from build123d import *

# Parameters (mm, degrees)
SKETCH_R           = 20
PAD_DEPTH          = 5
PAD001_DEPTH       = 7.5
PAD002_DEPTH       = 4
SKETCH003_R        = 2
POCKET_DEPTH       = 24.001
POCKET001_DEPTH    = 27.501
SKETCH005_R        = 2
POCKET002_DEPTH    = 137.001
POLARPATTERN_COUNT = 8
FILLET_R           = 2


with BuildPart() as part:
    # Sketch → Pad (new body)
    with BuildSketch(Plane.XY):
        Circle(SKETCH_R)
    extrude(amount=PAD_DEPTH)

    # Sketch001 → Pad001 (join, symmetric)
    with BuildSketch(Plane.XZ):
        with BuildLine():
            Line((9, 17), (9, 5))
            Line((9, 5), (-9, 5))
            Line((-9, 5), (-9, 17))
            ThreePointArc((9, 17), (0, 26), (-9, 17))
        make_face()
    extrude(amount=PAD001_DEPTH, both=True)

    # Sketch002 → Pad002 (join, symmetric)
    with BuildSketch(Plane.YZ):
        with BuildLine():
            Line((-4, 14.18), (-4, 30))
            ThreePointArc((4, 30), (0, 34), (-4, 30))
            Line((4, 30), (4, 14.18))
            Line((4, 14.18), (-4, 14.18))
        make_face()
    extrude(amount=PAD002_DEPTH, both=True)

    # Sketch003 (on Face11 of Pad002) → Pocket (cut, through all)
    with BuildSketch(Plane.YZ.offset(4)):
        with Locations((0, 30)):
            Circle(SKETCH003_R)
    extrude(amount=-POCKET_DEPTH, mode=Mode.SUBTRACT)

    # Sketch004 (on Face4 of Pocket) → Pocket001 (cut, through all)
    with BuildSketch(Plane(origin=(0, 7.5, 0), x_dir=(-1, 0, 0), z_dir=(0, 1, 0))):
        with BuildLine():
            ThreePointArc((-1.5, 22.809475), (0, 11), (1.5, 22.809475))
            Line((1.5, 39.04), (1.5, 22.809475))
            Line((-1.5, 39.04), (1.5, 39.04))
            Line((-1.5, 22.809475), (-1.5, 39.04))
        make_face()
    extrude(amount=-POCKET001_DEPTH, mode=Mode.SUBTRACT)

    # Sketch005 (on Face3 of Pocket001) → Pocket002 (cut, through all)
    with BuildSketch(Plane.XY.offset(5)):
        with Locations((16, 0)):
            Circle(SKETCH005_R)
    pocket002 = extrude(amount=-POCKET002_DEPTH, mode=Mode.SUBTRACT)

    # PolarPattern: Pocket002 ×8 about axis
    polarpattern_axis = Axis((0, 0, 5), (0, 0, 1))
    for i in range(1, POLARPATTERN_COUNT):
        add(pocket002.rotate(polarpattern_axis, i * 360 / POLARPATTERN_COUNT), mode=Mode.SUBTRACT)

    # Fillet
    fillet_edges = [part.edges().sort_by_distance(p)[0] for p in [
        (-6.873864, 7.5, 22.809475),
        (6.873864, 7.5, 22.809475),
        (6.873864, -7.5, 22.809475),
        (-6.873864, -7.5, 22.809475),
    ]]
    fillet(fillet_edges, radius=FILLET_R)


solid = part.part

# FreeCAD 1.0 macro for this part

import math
import FreeCAD as App
import Part
import Sketcher


def edges_at(feature, points):
    """Names of the edges that pass closest to the given points."""
    edges = feature.Shape.Edges
    near = lambda p: min(range(len(edges)), key=lambda i: edges[i].distToShape(Part.Vertex(*p))[0])
    return sorted({f"Edge{near(p) + 1}" for p in points})

doc = App.newDocument("Part")
body = doc.addObject("PartDesign::Body", "Body")

sketch1 = doc.addObject("Sketcher::SketchObject", "Sketch")
body.addObject(sketch1)
sketch1.AttachmentSupport = (doc.XY_Plane, [""])
sketch1.MapMode = "FlatFace"
sketch1.addGeometry(Part.Circle(App.Vector(0, 0, 0), App.Vector(0, 0, 1), 20), False)
sketch1.addConstraint(Sketcher.Constraint("Coincident", 0, 3, -1, 1))
sketch1.addConstraint(Sketcher.Constraint("Diameter", 0, 40.0))
pad1 = doc.addObject("PartDesign::Pad", "Pad")
body.addObject(pad1)
pad1.Profile = sketch1
pad1.Length = 5

sketch2 = doc.addObject("Sketcher::SketchObject", "Sketch001")
body.addObject(sketch2)
sketch2.AttachmentSupport = (doc.XZ_Plane, [""])
sketch2.MapMode = "FlatFace"
sketch2.addGeometry(Part.LineSegment(App.Vector(9, 5, 0), App.Vector(9, 17, 0)), False)
sketch2.addGeometry(Part.ArcOfCircle(Part.Circle(App.Vector(0, 17, 0), App.Vector(0, 0, 1), 9), math.radians(0), math.radians(180)), False)
sketch2.addGeometry(Part.LineSegment(App.Vector(-9, 17, 0), App.Vector(-9, 5, 0)), False)
sketch2.addGeometry(Part.LineSegment(App.Vector(-9, 5, 0), App.Vector(9, 5, 0)), False)
sketch2.addConstraint(Sketcher.Constraint("Tangent", 0, 2, 1, 1))
sketch2.addConstraint(Sketcher.Constraint("Tangent", 1, 2, 2, 1))
sketch2.addConstraint(Sketcher.Constraint("Coincident", 2, 2, 3, 1))
sketch2.addConstraint(Sketcher.Constraint("Coincident", 3, 2, 0, 1))
sketch2.addConstraint(Sketcher.Constraint("Vertical", 0))
sketch2.addConstraint(Sketcher.Constraint("Vertical", 2))
sketch2.addConstraint(Sketcher.Constraint("Horizontal", 3))
sketch2.addConstraint(Sketcher.Constraint("PointOnObject", 1, 3, -2))
sketch2.addConstraint(Sketcher.Constraint("Radius", 1, 9.0))
sketch2.addConstraint(Sketcher.Constraint("DistanceY", 0, 1, 0, 2, 12.0))
sketch2.addConstraint(Sketcher.Constraint("DistanceY", -1, 1, 1, 3, 17.0))
pad2 = doc.addObject("PartDesign::Pad", "Pad001")
body.addObject(pad2)
pad2.Profile = sketch2
pad2.Length = 15
pad2.Midplane = True

sketch3 = doc.addObject("Sketcher::SketchObject", "Sketch002")
body.addObject(sketch3)
sketch3.AttachmentSupport = (doc.YZ_Plane, [""])
sketch3.MapMode = "FlatFace"
sketch3.addGeometry(Part.LineSegment(App.Vector(-4, 30, 0), App.Vector(-4, 14.2, 0)), False)
sketch3.addGeometry(Part.LineSegment(App.Vector(-4, 14.2, 0), App.Vector(4, 14.2, 0)), False)
sketch3.addGeometry(Part.LineSegment(App.Vector(4, 14.2, 0), App.Vector(4, 30, 0)), False)
sketch3.addGeometry(Part.ArcOfCircle(Part.Circle(App.Vector(0, 30, 0), App.Vector(0, 0, 1), 4), math.radians(0), math.radians(180)), False)
sketch3.addConstraint(Sketcher.Constraint("Coincident", 0, 2, 1, 1))
sketch3.addConstraint(Sketcher.Constraint("Coincident", 1, 2, 2, 1))
sketch3.addConstraint(Sketcher.Constraint("Tangent", 2, 2, 3, 1))
sketch3.addConstraint(Sketcher.Constraint("Tangent", 3, 2, 0, 1))
sketch3.addConstraint(Sketcher.Constraint("Vertical", 0))
sketch3.addConstraint(Sketcher.Constraint("Horizontal", 1))
sketch3.addConstraint(Sketcher.Constraint("Vertical", 2))
sketch3.addConstraint(Sketcher.Constraint("PointOnObject", 3, 3, -2))
sketch3.addConstraint(Sketcher.Constraint("Radius", 3, 4.0))
sketch3.addConstraint(Sketcher.Constraint("DistanceY", -1, 1, 3, 3, 30.0))
sketch3.addConstraint(Sketcher.Constraint("DistanceY", 0, 2, 0, 1, 15.82))
pad3 = doc.addObject("PartDesign::Pad", "Pad002")
body.addObject(pad3)
pad3.Profile = sketch3
pad3.Length = 8
pad3.Midplane = True

sketch4 = doc.addObject("Sketcher::SketchObject", "Sketch003")
body.addObject(sketch4)
sketch4.AttachmentSupport = (doc.YZ_Plane, [""])
sketch4.MapMode = "FlatFace"
sketch4.AttachmentOffset = App.Placement(App.Vector(0, 0, 4), App.Rotation())
sketch4.addGeometry(Part.Circle(App.Vector(0, 30, 0), App.Vector(0, 0, 1), 2), False)
sketch4.addConstraint(Sketcher.Constraint("PointOnObject", 0, 3, -2))
sketch4.addConstraint(Sketcher.Constraint("Diameter", 0, 4.0))
sketch4.addConstraint(Sketcher.Constraint("DistanceY", -1, 1, 0, 3, 30.0))
pocket1 = doc.addObject("PartDesign::Pocket", "Pocket")
body.addObject(pocket1)
pocket1.Profile = sketch4
pocket1.Type = "ThroughAll"

sketch5 = doc.addObject("Sketcher::SketchObject", "Sketch004")
body.addObject(sketch5)
sketch5.AttachmentSupport = (doc.XZ_Plane, [""])
sketch5.MapMode = "FlatFace"
sketch5.AttachmentOffset = App.Placement(App.Vector(0, 0, -7.5), App.Rotation())
sketch5.addGeometry(Part.ArcOfCircle(Part.Circle(App.Vector(0, 17, 0), App.Vector(0, 0, 1), 6), math.radians(104), math.radians(436)), False)
sketch5.addGeometry(Part.LineSegment(App.Vector(-1.5, 22.8, 0), App.Vector(-1.5, 39, 0)), False)
sketch5.addGeometry(Part.LineSegment(App.Vector(-1.5, 39, 0), App.Vector(1.5, 39, 0)), False)
sketch5.addGeometry(Part.LineSegment(App.Vector(1.5, 39, 0), App.Vector(1.5, 22.8, 0)), False)
sketch5.addConstraint(Sketcher.Constraint("Coincident", 0, 1, 1, 1))
sketch5.addConstraint(Sketcher.Constraint("Coincident", 1, 2, 2, 1))
sketch5.addConstraint(Sketcher.Constraint("Coincident", 2, 2, 3, 1))
sketch5.addConstraint(Sketcher.Constraint("Coincident", 3, 2, 0, 2))
sketch5.addConstraint(Sketcher.Constraint("Vertical", 1))
sketch5.addConstraint(Sketcher.Constraint("Horizontal", 2))
sketch5.addConstraint(Sketcher.Constraint("Vertical", 3))
sketch5.addConstraint(Sketcher.Constraint("Symmetric", 0, 1, 3, 2, -2))
sketch5.addConstraint(Sketcher.Constraint("Radius", 0, 6.0))
sketch5.addConstraint(Sketcher.Constraint("DistanceX", 2, 1, 2, 2, 3.0))
sketch5.addConstraint(Sketcher.Constraint("DistanceY", -1, 1, 0, 3, 17.0))
sketch5.addConstraint(Sketcher.Constraint("DistanceY", -1, 1, 1, 2, 39.04))
pocket2 = doc.addObject("PartDesign::Pocket", "Pocket001")
body.addObject(pocket2)
pocket2.Profile = sketch5
pocket2.Type = "ThroughAll"
pocket2.Reversed = True

sketch6 = doc.addObject("Sketcher::SketchObject", "Sketch005")
body.addObject(sketch6)
sketch6.AttachmentSupport = (doc.XY_Plane, [""])
sketch6.MapMode = "FlatFace"
sketch6.AttachmentOffset = App.Placement(App.Vector(0, 0, 5), App.Rotation())
sketch6.addGeometry(Part.Circle(App.Vector(16, 0, 0), App.Vector(0, 0, 1), 2), False)
sketch6.addConstraint(Sketcher.Constraint("PointOnObject", 0, 3, -1))
sketch6.addConstraint(Sketcher.Constraint("Diameter", 0, 4.0))
sketch6.addConstraint(Sketcher.Constraint("DistanceX", -1, 1, 0, 3, 16.0))
pocket3 = doc.addObject("PartDesign::Pocket", "Pocket002")
body.addObject(pocket3)
pocket3.Profile = sketch6
pocket3.Type = "ThroughAll"
doc.recompute()

polarpattern = doc.addObject("PartDesign::PolarPattern", "PolarPattern")
body.addObject(polarpattern)
polarpattern.Originals = [pocket3]
polarpattern.Axis = (doc.Z_Axis, [""])
polarpattern.Angle = 360
polarpattern.Occurrences = 8
body.Tip = polarpattern
doc.recompute()

fillet = doc.addObject("PartDesign::Fillet", "Fillet")
body.addObject(fillet)
fillet.Base = (polarpattern, edges_at(polarpattern, [
    (-6.874, 7.5, 22.809),
    (6.874, 7.5, 22.809),
    (6.874, -7.5, 22.809),
    (-6.874, -7.5, 22.809),
]))
fillet.Radius = 2

doc.recompute()
